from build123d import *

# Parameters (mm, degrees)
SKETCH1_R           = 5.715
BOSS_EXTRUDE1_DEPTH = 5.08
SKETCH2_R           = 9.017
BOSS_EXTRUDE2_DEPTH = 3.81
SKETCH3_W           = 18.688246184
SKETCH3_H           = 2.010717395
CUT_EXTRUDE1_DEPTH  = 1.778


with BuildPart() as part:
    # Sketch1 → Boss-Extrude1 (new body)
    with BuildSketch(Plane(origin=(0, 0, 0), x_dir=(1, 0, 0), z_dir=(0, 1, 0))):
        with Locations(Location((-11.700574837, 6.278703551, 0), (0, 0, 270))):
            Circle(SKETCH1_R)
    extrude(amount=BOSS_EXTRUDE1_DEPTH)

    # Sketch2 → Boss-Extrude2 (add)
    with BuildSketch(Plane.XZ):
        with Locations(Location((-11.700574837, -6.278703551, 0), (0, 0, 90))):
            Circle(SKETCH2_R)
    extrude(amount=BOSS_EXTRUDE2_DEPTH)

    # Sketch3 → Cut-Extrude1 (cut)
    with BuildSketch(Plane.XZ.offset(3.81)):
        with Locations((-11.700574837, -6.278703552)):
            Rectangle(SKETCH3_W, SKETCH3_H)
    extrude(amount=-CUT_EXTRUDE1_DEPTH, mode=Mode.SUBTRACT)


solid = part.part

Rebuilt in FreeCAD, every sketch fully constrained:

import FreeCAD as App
import Part
import Sketcher

V = App.Vector
Q = App.Units.Quantity

doc = App.newDocument("Part")
body = doc.addObject("PartDesign::Body", "Body")

# Sketch on XZ plane
sketch1 = body.newObject("Sketcher::SketchObject", "Sketch")
sketch1.AttachmentSupport = (doc.getObject("XZ_Plane"), [""])
sketch1.MapMode = "FlatFace"
sketch1.addGeometry(Part.Circle(V(-11.700575, -6.278704, 0), V(0, 0, 1), 5.715), False)
sketch1.addConstraint(Sketcher.Constraint("Diameter", 0, Q("0.45 in")))
sketch1.addConstraint(Sketcher.Constraint("DistanceX", 0, 3, -1, 1, Q("11.700575 mm")))
sketch1.addConstraint(Sketcher.Constraint("DistanceY", 0, 3, -1, 1, Q("6.278704 mm")))
pad1 = body.newObject("PartDesign::Pad", "Pad")
pad1.Profile = sketch1
pad1.Length = Q("0.2 in")
pad1.Reversed = True

# Sketch on XZ plane
sketch2 = body.newObject("Sketcher::SketchObject", "Sketch001")
sketch2.AttachmentSupport = (doc.getObject("XZ_Plane"), [""])
sketch2.MapMode = "FlatFace"
sketch2.addGeometry(Part.Circle(V(-11.700575, -6.278704, 0), V(0, 0, 1), 9.017), False)
sketch2.addConstraint(Sketcher.Constraint("Diameter", 0, Q("0.71 in")))
sketch2.addConstraint(Sketcher.Constraint("DistanceX", 0, 3, -1, 1, Q("11.700575 mm")))
sketch2.addConstraint(Sketcher.Constraint("DistanceY", 0, 3, -1, 1, Q("6.278704 mm")))
pad2 = body.newObject("PartDesign::Pad", "Pad001")
pad2.Profile = sketch2
pad2.Length = Q("0.15 in")

# Sketch on XZ plane
sketch3 = body.newObject("Sketcher::SketchObject", "Sketch002")
sketch3.AttachmentSupport = (doc.getObject("XZ_Plane"), [""])
sketch3.MapMode = "FlatFace"
sketch3.AttachmentOffset = App.Placement(V(0, 0, 0.15 * 25.4), App.Rotation())
sketch3.addGeometry(Part.LineSegment(V(-21.044698, -5.273345, 0), V(-21.044698, -7.284062, 0)), False)
sketch3.addGeometry(Part.LineSegment(V(-21.044698, -7.284062, 0), V(-2.356452, -7.284062, 0)), False)
sketch3.addGeometry(Part.LineSegment(V(-2.356452, -7.284062, 0), V(-2.356452, -5.273345, 0)), False)
sketch3.addGeometry(Part.LineSegment(V(-2.356452, -5.273345, 0), V(-21.044698, -5.273345, 0)), False)
sketch3.addConstraint(Sketcher.Constraint("Coincident", 0, 2, 1, 1))
sketch3.addConstraint(Sketcher.Constraint("Coincident", 1, 2, 2, 1))
sketch3.addConstraint(Sketcher.Constraint("Coincident", 2, 2, 3, 1))
sketch3.addConstraint(Sketcher.Constraint("Coincident", 3, 2, 0, 1))
sketch3.addConstraint(Sketcher.Constraint("Vertical", 0))
sketch3.addConstraint(Sketcher.Constraint("Horizontal", 1))
sketch3.addConstraint(Sketcher.Constraint("Vertical", 2))
sketch3.addConstraint(Sketcher.Constraint("Horizontal", 3))
sketch3.addConstraint(Sketcher.Constraint("DistanceX", 1, 1, 1, 2, Q("18.688246 mm")))
sketch3.addConstraint(Sketcher.Constraint("DistanceY", 0, 2, 0, 1, Q("2.010717 mm")))
sketch3.addConstraint(Sketcher.Constraint("DistanceX", 1, 2, -1, 1, Q("2.356452 mm")))
sketch3.addConstraint(Sketcher.Constraint("DistanceY", 0, 2, -1, 1, Q("7.284062 mm")))
pocket1 = body.newObject("PartDesign::Pocket", "Pocket")
pocket1.Profile = sketch3
pocket1.Length = Q("0.07 in")

doc.recompute()
